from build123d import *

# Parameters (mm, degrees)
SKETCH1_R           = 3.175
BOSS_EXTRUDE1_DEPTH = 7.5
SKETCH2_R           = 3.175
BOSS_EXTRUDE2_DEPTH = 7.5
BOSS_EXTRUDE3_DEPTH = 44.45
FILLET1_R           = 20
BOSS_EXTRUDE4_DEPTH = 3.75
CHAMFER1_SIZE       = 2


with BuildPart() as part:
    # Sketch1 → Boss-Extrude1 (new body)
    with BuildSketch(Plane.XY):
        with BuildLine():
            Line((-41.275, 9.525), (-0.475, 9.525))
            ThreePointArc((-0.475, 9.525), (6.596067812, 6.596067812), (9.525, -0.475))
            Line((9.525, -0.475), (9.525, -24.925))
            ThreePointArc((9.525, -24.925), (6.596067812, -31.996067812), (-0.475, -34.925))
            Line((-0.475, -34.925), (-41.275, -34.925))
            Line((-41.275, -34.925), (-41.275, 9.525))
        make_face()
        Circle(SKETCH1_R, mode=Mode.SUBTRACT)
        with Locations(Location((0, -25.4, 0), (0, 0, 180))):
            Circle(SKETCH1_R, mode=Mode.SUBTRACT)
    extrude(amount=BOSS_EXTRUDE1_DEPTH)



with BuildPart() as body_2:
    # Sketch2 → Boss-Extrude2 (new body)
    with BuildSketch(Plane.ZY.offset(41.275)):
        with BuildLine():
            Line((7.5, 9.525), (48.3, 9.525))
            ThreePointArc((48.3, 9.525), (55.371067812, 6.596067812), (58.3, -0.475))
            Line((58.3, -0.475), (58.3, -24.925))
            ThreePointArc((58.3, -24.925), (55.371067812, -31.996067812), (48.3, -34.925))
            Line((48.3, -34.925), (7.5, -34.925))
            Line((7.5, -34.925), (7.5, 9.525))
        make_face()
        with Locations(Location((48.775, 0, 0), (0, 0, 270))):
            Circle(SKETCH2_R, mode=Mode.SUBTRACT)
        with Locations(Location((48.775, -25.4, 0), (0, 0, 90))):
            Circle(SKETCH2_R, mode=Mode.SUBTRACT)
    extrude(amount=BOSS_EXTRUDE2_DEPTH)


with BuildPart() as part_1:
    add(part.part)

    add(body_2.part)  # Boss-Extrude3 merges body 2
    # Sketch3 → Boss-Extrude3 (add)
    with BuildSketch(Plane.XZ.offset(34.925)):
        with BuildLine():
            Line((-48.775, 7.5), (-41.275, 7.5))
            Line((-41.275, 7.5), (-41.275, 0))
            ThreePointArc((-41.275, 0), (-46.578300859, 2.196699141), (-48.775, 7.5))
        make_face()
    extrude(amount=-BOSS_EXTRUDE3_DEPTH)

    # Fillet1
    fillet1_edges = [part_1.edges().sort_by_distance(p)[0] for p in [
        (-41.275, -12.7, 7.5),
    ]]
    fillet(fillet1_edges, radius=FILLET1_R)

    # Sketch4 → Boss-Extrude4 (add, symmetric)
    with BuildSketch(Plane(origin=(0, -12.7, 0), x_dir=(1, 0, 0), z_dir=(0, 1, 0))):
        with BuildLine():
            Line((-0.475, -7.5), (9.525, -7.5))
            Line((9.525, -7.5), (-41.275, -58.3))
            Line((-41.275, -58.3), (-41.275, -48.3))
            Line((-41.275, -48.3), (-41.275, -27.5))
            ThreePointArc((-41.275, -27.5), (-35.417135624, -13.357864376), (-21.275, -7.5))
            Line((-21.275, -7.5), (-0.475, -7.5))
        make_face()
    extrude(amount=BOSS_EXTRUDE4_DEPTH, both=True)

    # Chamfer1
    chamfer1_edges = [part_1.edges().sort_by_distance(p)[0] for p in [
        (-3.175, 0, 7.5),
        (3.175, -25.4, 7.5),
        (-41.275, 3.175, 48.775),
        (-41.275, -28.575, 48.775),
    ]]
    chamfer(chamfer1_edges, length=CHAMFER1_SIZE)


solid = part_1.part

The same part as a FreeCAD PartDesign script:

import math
import FreeCAD as App
import Part
import Sketcher
from FreeCAD import Vector
Q = App.Units.Quantity


def edges_at(feature, points):
    """Names of the edges that pass closest to the given points."""
    edges = feature.Shape.Edges
    near = lambda p: min(range(len(edges)), key=lambda i: edges[i].distToShape(Part.Vertex(*p))[0])
    return sorted({f"Edge{near(p) + 1}" for p in points})

doc = App.newDocument("Part")
body = doc.addObject("PartDesign::Body", "Body")

# Sketch on XY plane
sketch1 = doc.addObject("Sketcher::SketchObject", "Sketch")
body.addObject(sketch1)
sketch1.AttachmentSupport = (doc.XY_Plane, [""])
sketch1.MapMode = "FlatFace"
sketch1.addGeometry(Part.LineSegment(Vector(-0.5, 9.5, 0), Vector(-41.3, 9.5, 0)), False)
sketch1.addGeometry(Part.LineSegment(Vector(-41.3, 9.5, 0), Vector(-41.3, -34.9, 0)), False)
sketch1.addGeometry(Part.LineSegment(Vector(-41.3, -34.9, 0), Vector(-0.5, -34.9, 0)), False)
sketch1.addGeometry(Part.ArcOfCircle(Part.Circle(Vector(-0.5, -24.9, 0), Vector(0, 0, 1), 10), math.radians(-90), math.radians(0)), False)
sketch1.addGeometry(Part.LineSegment(Vector(9.5, -24.9, 0), Vector(9.5, -0.5, 0)), False)
sketch1.addGeometry(Part.ArcOfCircle(Part.Circle(Vector(-0.5, -0.5, 0), Vector(0, 0, 1), 10), math.radians(0), math.radians(90)), False)
sketch1.addGeometry(Part.Circle(Vector(0, -25.4, 0), Vector(0, 0, 1), 3.2), False)
sketch1.addGeometry(Part.Circle(Vector(0, 0, 0), Vector(0, 0, 1), 3.2), False)
sketch1.addConstraint(Sketcher.Constraint("Coincident", 0, 2, 1, 1))
sketch1.addConstraint(Sketcher.Constraint("Coincident", 1, 2, 2, 1))
sketch1.addConstraint(Sketcher.Constraint("Tangent", 2, 2, 3, 1))
sketch1.addConstraint(Sketcher.Constraint("Tangent", 3, 2, 4, 1))
sketch1.addConstraint(Sketcher.Constraint("Tangent", 4, 2, 5, 1))
sketch1.addConstraint(Sketcher.Constraint("Tangent", 5, 2, 0, 1))
sketch1.addConstraint(Sketcher.Constraint("Horizontal", 0))
sketch1.addConstraint(Sketcher.Constraint("Vertical", 1))
sketch1.addConstraint(Sketcher.Constraint("Horizontal", 2))
sketch1.addConstraint(Sketcher.Constraint("Vertical", 4))
sketch1.addConstraint(Sketcher.Constraint("Coincident", 7, 3, -1, 1))
sketch1.addConstraint(Sketcher.Constraint("Equal", 3, 5))
sketch1.addConstraint(Sketcher.Constraint("Equal", 6, 7))
sketch1.addConstraint(Sketcher.Constraint("PointOnObject", 6, 3, -2))
sketch1.addConstraint(Sketcher.Constraint("Radius", 3, Q("10 mm")))
sketch1.addConstraint(Sketcher.Constraint("Diameter", 6, Q("6.35 mm")))
sketch1.addConstraint(Sketcher.Constraint("DistanceX", 0, 2, 0, 1, Q("40.8 mm")))
sketch1.addConstraint(Sketcher.Constraint("DistanceY", 1, 2, 1, 1, Q("44.45 mm")))
sketch1.addConstraint(Sketcher.Constraint("DistanceY", 6, 3, -1, 1, Q("25.4 mm")))
sketch1.addConstraint(Sketcher.Constraint("DistanceX", 3, 3, -1, 1, Q("0.475 mm")))
sketch1.addConstraint(Sketcher.Constraint("DistanceY", 3, 3, -1, 1, Q("24.925 mm")))
pad1 = doc.addObject("PartDesign::Pad", "Pad")
body.addObject(pad1)
pad1.Profile = sketch1
pad1.Length = 7.5
body2 = doc.addObject("PartDesign::Body", "Body001")

# Sketch on YZ plane
sketch2 = doc.addObject("Sketcher::SketchObject", "Sketch001")
body2.addObject(sketch2)
sketch2.AttachmentSupport = (doc.getObject("YZ_Plane001"), [""])
sketch2.MapMode = "FlatFace"
sketch2.AttachmentOffset = App.Placement(Vector(0, 0, -41.275), App.Rotation())
sketch2.addGeometry(Part.LineSegment(Vector(9.5, 48.3, 0), Vector(9.5, 7.5, 0)), False)
sketch2.addGeometry(Part.LineSegment(Vector(9.5, 7.5, 0), Vector(-34.9, 7.5, 0)), False)
sketch2.addGeometry(Part.LineSegment(Vector(-34.9, 7.5, 0), Vector(-34.9, 48.3, 0)), False)
sketch2.addGeometry(Part.ArcOfCircle(Part.Circle(Vector(-24.9, 48.3, 0), Vector(0, 0, 1), 10), math.radians(90), math.radians(180)), False)
sketch2.addGeometry(Part.LineSegment(Vector(-24.9, 58.3, 0), Vector(-0.5, 58.3, 0)), False)
sketch2.addGeometry(Part.ArcOfCircle(Part.Circle(Vector(-0.5, 48.3, 0), Vector(0, 0, 1), 10), math.radians(0), math.radians(90)), False)
sketch2.addGeometry(Part.Circle(Vector(-25.4, 48.8, 0), Vector(0, 0, 1), 3.2), False)
sketch2.addGeometry(Part.Circle(Vector(0, 48.8, 0), Vector(0, 0, 1), 3.2), False)
sketch2.addConstraint(Sketcher.Constraint("Coincident", 0, 2, 1, 1))
sketch2.addConstraint(Sketcher.Constraint("Coincident", 1, 2, 2, 1))
sketch2.addConstraint(Sketcher.Constraint("Tangent", 2, 2, 3, 2))
sketch2.addConstraint(Sketcher.Constraint("Tangent", 3, 1, 4, 1))
sketch2.addConstraint(Sketcher.Constraint("Tangent", 4, 2, 5, 2))
sketch2.addConstraint(Sketcher.Constraint("Tangent", 5, 1, 0, 1))
sketch2.addConstraint(Sketcher.Constraint("Vertical", 0))
sketch2.addConstraint(Sketcher.Constraint("Horizontal", 1))
sketch2.addConstraint(Sketcher.Constraint("Vertical", 2))
sketch2.addConstraint(Sketcher.Constraint("Horizontal", 4))
sketch2.addConstraint(Sketcher.Constraint("Equal", 3, 5))
sketch2.addConstraint(Sketcher.Constraint("Equal", 6, 7))
sketch2.addConstraint(Sketcher.Constraint("PointOnObject", 7, 3, -2))
sketch2.addConstraint(Sketcher.Constraint("Horizontal", 6, 3, 7, 3))
sketch2.addConstraint(Sketcher.Constraint("Radius", 3, Q("10 mm")))
sketch2.addConstraint(Sketcher.Constraint("Diameter", 6, Q("6.35 mm")))
sketch2.addConstraint(Sketcher.Constraint("DistanceY", 0, 2, 0, 1, Q("40.8 mm")))
sketch2.addConstraint(Sketcher.Constraint("DistanceX", 1, 2, 1, 1, Q("44.45 mm")))
sketch2.addConstraint(Sketcher.Constraint("DistanceY", -1, 1, 3, 3, Q("48.3 mm")))
sketch2.addConstraint(Sketcher.Constraint("DistanceX", 6, 3, -1, 1, Q("25.4 mm")))
sketch2.addConstraint(Sketcher.Constraint("DistanceX", 3, 3, -1, 1, Q("24.925 mm")))
sketch2.addConstraint(Sketcher.Constraint("DistanceY", -1, 1, 6, 3, Q("48.775 mm")))
pad2 = doc.addObject("PartDesign::Pad", "Pad001")
body2.addObject(pad2)
pad2.Profile = sketch2
pad2.Length = 7.5
pad2.Reversed = True
body.AllowCompound = True
doc.recompute()

boolean = doc.addObject("PartDesign::Boolean", "Boolean")
body.addObject(boolean)
boolean.Type = "Fuse"
boolean.addObjects([body2])

# Sketch on XZ plane
sketch3 = doc.addObject("Sketcher::SketchObject", "Sketch002")
body.addObject(sketch3)
sketch3.AttachmentSupport = (doc.XZ_Plane, [""])
sketch3.MapMode = "FlatFace"
sketch3.AttachmentOffset = App.Placement(Vector(0, 0, 34.925), App.Rotation())
sketch3.addGeometry(Part.LineSegment(Vector(-41, 8, 0), Vector(-49, 8, 0)), False)
sketch3.addGeometry(Part.ArcOfCircle(Part.Circle(Vector(-41, 8, 0), Vector(0, 0, 1), 8), math.radians(180), math.radians(270)), False)
sketch3.addGeometry(Part.LineSegment(Vector(-41, 0, 0), Vector(-41, 8, 0)), False)
sketch3.addConstraint(Sketcher.Constraint("Coincident", 0, 2, 1, 1))
sketch3.addConstraint(Sketcher.Constraint("Coincident", 1, 2, 2, 1))
sketch3.addConstraint(Sketcher.Constraint("Coincident", 2, 2, 0, 1))
sketch3.addConstraint(Sketcher.Constraint("Horizontal", 0))
sketch3.addConstraint(Sketcher.Constraint("Vertical", 2))
sketch3.addConstraint(Sketcher.Constraint("Coincident", 2, 2, 1, 3))
sketch3.addConstraint(Sketcher.Constraint("PointOnObject", 1, 2, -1))
sketch3.addConstraint(Sketcher.Constraint("Radius", 1, Q("7.5 mm")))
sketch3.addConstraint(Sketcher.Constraint("DistanceX", 1, 3, -1, 1, Q("41.275 mm")))
pad3 = doc.addObject("PartDesign::Pad", "Pad002")
body.addObject(pad3)
pad3.Profile = sketch3
pad3.Length = 44.45
pad3.Reversed = True
doc.recompute()

fillet = doc.addObject("PartDesign::Fillet", "Fillet")
body.addObject(fillet)
fillet.Base = (pad3, edges_at(pad3, [(-41.275, -12.7, 7.5)]))
fillet.Radius = 20

# Sketch on XZ plane
sketch4 = doc.addObject("Sketcher::SketchObject", "Sketch003")
body.addObject(sketch4)
sketch4.AttachmentSupport = (doc.XZ_Plane, [""])
sketch4.MapMode = "FlatFace"
sketch4.AttachmentOffset = App.Placement(Vector(0, 0, 12.7), App.Rotation())
sketch4.addGeometry(Part.LineSegment(Vector(-41, 58, 0), Vector(10, 8, 0)), False)
sketch4.addGeometry(Part.LineSegment(Vector(10, 8, 0), Vector(-21, 8, 0)), False)
sketch4.addGeometry(Part.ArcOfCircle(Part.Circle(Vector(-21, 27, 0), Vector(0, 0, 1), 20), math.radians(180), math.radians(270)), False)
sketch4.addGeometry(Part.LineSegment(Vector(-41, 28, 0), Vector(-41, 58, 0)), False)
sketch4.addConstraint(Sketcher.Constraint("Coincident", 0, 2, 1, 1))
sketch4.addConstraint(Sketcher.Constraint("Tangent", 1, 2, 2, 2))
sketch4.addConstraint(Sketcher.Constraint("Tangent", 2, 1, 3, 1))
sketch4.addConstraint(Sketcher.Constraint("Coincident", 3, 2, 0, 1))
sketch4.addConstraint(Sketcher.Constraint("Horizontal", 1))
sketch4.addConstraint(Sketcher.Constraint("Vertical", 3))
sketch4.addConstraint(Sketcher.Constraint("Equal", 1, 3))
sketch4.addConstraint(Sketcher.Constraint("Radius", 2, Q("20 mm")))
sketch4.addConstraint(Sketcher.Constraint("DistanceX", 1, 2, 1, 1, Q("30.8 mm")))
sketch4.addConstraint(Sketcher.Constraint("DistanceY", -1, 1, 2, 3, Q("27.5 mm")))
sketch4.addConstraint(Sketcher.Constraint("DistanceX", 2, 3, -1, 1, Q("21.275 mm")))
pad4 = doc.addObject("PartDesign::Pad", "Pad003")
body.addObject(pad4)
pad4.Profile = sketch4
pad4.Length = 7.5
pad4.Midplane = True
doc.recompute()

chamfer = doc.addObject("PartDesign::Chamfer", "Chamfer")
body.addObject(chamfer)
chamfer.Base = (pad4, edges_at(pad4, [
    (-3.175, 0, 7.5),
    (3.175, -25.4, 7.5),
    (-41.275, 3.175, 48.775),
    (-41.275, -28.575, 48.775),
]))
chamfer.Size = 2

doc.recompute()
